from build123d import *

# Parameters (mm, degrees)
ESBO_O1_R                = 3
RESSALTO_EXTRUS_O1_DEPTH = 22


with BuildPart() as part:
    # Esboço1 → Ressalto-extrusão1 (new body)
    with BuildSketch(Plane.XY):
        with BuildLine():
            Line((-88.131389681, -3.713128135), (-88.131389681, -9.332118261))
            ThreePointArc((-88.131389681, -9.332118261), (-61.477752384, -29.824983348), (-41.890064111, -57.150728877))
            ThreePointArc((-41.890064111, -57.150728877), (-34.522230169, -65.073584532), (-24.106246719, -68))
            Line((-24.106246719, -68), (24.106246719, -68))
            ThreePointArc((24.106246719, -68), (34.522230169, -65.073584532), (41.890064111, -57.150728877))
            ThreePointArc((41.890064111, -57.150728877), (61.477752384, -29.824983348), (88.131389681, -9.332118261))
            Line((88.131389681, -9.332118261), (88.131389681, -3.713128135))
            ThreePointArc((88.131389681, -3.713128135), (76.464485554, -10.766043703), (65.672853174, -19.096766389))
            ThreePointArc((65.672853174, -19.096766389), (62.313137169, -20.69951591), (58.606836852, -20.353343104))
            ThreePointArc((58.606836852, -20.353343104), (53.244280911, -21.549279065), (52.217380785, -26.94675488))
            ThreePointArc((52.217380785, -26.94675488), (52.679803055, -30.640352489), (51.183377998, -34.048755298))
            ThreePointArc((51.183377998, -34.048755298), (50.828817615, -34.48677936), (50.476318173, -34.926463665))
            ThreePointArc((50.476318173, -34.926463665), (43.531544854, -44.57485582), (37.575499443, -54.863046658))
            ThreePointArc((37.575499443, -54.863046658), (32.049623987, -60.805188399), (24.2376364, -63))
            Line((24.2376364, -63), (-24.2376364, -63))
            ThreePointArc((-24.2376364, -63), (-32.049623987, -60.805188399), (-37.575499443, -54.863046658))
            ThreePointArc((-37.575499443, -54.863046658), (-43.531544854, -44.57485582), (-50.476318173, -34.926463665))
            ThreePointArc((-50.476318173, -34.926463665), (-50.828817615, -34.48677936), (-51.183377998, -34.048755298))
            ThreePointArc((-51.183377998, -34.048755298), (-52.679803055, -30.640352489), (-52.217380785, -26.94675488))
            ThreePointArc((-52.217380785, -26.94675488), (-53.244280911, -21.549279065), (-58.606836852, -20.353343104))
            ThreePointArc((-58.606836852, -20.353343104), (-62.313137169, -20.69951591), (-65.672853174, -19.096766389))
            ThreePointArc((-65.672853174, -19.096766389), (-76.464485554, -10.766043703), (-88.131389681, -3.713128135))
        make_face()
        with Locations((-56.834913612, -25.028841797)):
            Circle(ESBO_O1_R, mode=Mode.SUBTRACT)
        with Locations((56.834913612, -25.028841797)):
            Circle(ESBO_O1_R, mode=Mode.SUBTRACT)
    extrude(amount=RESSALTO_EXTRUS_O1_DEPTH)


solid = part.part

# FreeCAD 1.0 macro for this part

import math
import FreeCAD as App
import Part
import Sketcher
from FreeCAD import Vector

doc = App.newDocument("Part")
body = doc.addObject("PartDesign::Body", "Body")

# Sketch on XY plane
sketch1 = doc.addObject("Sketcher::SketchObject", "Sketch")
body.addObject(sketch1)
sketch1.AttachmentSupport = (doc.XY_Plane, [""])
sketch1.MapMode = "FlatFace"
sketch1.addGeometry([
    Part.LineSegment(Vector(-88.1, -3.7, 0), Vector(-88.1, -9.3, 0)),  # 0
    Part.ArcOfCircle(Part.Circle(Vector(-144.1, -109.8, 0), Vector(0, 0, 1), 115), math.radians(27), math.radians(61)),  # 1
    Part.ArcOfCircle(Part.Circle(Vector(-24.1, -48, 0), Vector(0, 0, 1), 20), math.radians(-153), math.radians(-90)),  # 2
    Part.LineSegment(Vector(-24.1, -68, 0), Vector(24.1, -68, 0)),  # 3
    Part.ArcOfCircle(Part.Circle(Vector(24.1, -48, 0), Vector(0, 0, 1), 20), math.radians(-90), math.radians(-27)),  # 4
    Part.ArcOfCircle(Part.Circle(Vector(144.1, -109.8, 0), Vector(0, 0, 1), 115), math.radians(119), math.radians(153)),  # 5
    Part.LineSegment(Vector(88.1, -9.3, 0), Vector(88.1, -3.7, 0)),  # 6
    Part.ArcOfCircle(Part.Circle(Vector(144.3, -109.8, 0), Vector(0, 0, 1), 120), math.radians(117.9), math.radians(130.92)),  # 7
    Part.ArcOfCircle(Part.Circle(Vector(61.1, -13.8, 0), Vector(0, 0, 1), 7), math.radians(-111), math.radians(-49)),  # 8
    Part.ArcOfCircle(Part.Circle(Vector(56.8, -25, 0), Vector(0, 0, 1), 5), math.radians(69), math.radians(203)),  # 9
    Part.ArcOfCircle(Part.Circle(Vector(45.8, -29.6, 0), Vector(0, 0, 1), 7), math.radians(-39), math.radians(23)),  # 10
    Part.ArcOfCircle(Part.Circle(Vector(144.3, -109.8, 0), Vector(0, 0, 1), 120), math.radians(140.88), math.radians(141.42)),  # 11
    Part.ArcOfCircle(Part.Circle(Vector(144.3, -109.8, 0), Vector(0, 0, 1), 120), math.radians(141.42), math.radians(152.77)),  # 12
    Part.ArcOfCircle(Part.Circle(Vector(24.2, -48, 0), Vector(0, 0, 1), 15), math.radians(-90), math.radians(-27)),  # 13
    Part.LineSegment(Vector(24.2, -63, 0), Vector(-24.2, -63, 0)),  # 14
    Part.ArcOfCircle(Part.Circle(Vector(-24.2, -48, 0), Vector(0, 0, 1), 15), math.radians(-153), math.radians(-90)),  # 15
    Part.ArcOfCircle(Part.Circle(Vector(-144.3, -109.8, 0), Vector(0, 0, 1), 120), math.radians(27.23), math.radians(38.58)),  # 16
    Part.ArcOfCircle(Part.Circle(Vector(-144.3, -109.8, 0), Vector(0, 0, 1), 120), math.radians(38.58), math.radians(39.12)),  # 17
    Part.ArcOfCircle(Part.Circle(Vector(-45.8, -29.6, 0), Vector(0, 0, 1), 7), math.radians(157), math.radians(219)),  # 18
    Part.ArcOfCircle(Part.Circle(Vector(-56.8, -25, 0), Vector(0, 0, 1), 5), math.radians(-23), math.radians(111)),  # 19
    Part.ArcOfCircle(Part.Circle(Vector(-61.1, -13.8, 0), Vector(0, 0, 1), 7), math.radians(-131), math.radians(-69)),  # 20
    Part.ArcOfCircle(Part.Circle(Vector(-144.3, -109.8, 0), Vector(0, 0, 1), 120), math.radians(49.08), math.radians(62.1)),  # 21
    Part.Circle(Vector(-56.8, -25, 0), Vector(0, 0, 1), 3),  # 22
    Part.Circle(Vector(56.8, -25, 0), Vector(0, 0, 1), 3),  # 23
], False)
sketch1.addConstraint([
    Sketcher.Constraint("Coincident", 0, 2, 1, 2),
    Sketcher.Constraint("Tangent", 1, 1, 2, 1),
    Sketcher.Constraint("Tangent", 2, 2, 3, 1),
    Sketcher.Constraint("Tangent", 3, 2, 4, 1),
    Sketcher.Constraint("Tangent", 4, 2, 5, 2),
    Sketcher.Constraint("Coincident", 5, 1, 6, 1),
    Sketcher.Constraint("Coincident", 6, 2, 7, 1),
    Sketcher.Constraint("Tangent", 7, 2, 8, 2),
    Sketcher.Constraint("Tangent", 8, 1, 9, 1),
    Sketcher.Constraint("Tangent", 9, 2, 10, 2),
    Sketcher.Constraint("Tangent", 10, 1, 11, 1),
    Sketcher.Constraint("Tangent", 11, 2, 12, 1),
    Sketcher.Constraint("Tangent", 12, 2, 13, 2),
    Sketcher.Constraint("Tangent", 13, 1, 14, 1),
    Sketcher.Constraint("Tangent", 14, 2, 15, 2),
    Sketcher.Constraint("Tangent", 15, 1, 16, 1),
    Sketcher.Constraint("Tangent", 16, 2, 17, 1),
    Sketcher.Constraint("Tangent", 17, 2, 18, 2),
    Sketcher.Constraint("Tangent", 18, 1, 19, 1),
    Sketcher.Constraint("Tangent", 19, 2, 20, 2),
    Sketcher.Constraint("Tangent", 20, 1, 21, 1),
    Sketcher.Constraint("Coincident", 21, 2, 0, 1),
    Sketcher.Constraint("Vertical", 0),
    Sketcher.Constraint("Horizontal", 3),
    Sketcher.Constraint("Vertical", 6),
    Sketcher.Constraint("Horizontal", 14),
    Sketcher.Constraint("Coincident", 12, 3, 7, 3),
    Sketcher.Constraint("Coincident", 21, 3, 16, 3),
    Sketcher.Constraint("Coincident", 22, 3, 19, 3),
    Sketcher.Constraint("Coincident", 23, 3, 9, 3),
    Sketcher.Constraint("Equal", 2, 4),
    Sketcher.Constraint("Equal", 1, 5),
    Sketcher.Constraint("Equal", 8, 10),
    Sketcher.Constraint("Equal", 7, 12),
    Sketcher.Constraint("Equal", 13, 15),
    Sketcher.Constraint("Equal", 12, 16),
    Sketcher.Constraint("Equal", 11, 17),
    Sketcher.Constraint("Equal", 10, 18),
    Sketcher.Constraint("Equal", 9, 19),
    Sketcher.Constraint("Equal", 18, 20),
    Sketcher.Constraint("Equal", 16, 21),
    Sketcher.Constraint("Equal", 22, 23),
    Sketcher.Constraint("Symmetric", 1, 3, 5, 3, -2),
    Sketcher.Constraint("Symmetric", 7, 3, 16, 3, -2),
    Sketcher.Constraint("Symmetric", 9, 3, 19, 3, -2),
    Sketcher.Constraint("Horizontal", 5, 3, 7, 3),
    Sketcher.Constraint("Horizontal", 4, 3, 13, 3),
    Sketcher.Constraint("Horizontal", 0, 2, 5, 1),
    Sketcher.Constraint("Horizontal", 11, 2, 16, 2),
    Sketcher.Constraint("Diameter", 22, 6.0),
    Sketcher.Constraint("Radius", 1, 115.0),
    Sketcher.Constraint("Radius", 2, 20.0),
    Sketcher.Constraint("Radius", 7, 120.0),
    Sketcher.Constraint("Radius", 8, 7.0),
    Sketcher.Constraint("Radius", 9, 5.0),
    Sketcher.Constraint("Radius", 13, 15.0),
    Sketcher.Constraint("DistanceY", 2, 3, -1, 1, 48.0),
    Sketcher.Constraint("Radius", 11, 119.999964),
    Sketcher.Constraint("DistanceY", 10, 1, 9, 2, 7.102),
    Sketcher.Constraint("DistanceY", 0, 2, 0, 1, 5.61899),
    Sketcher.Constraint("DistanceX", -1, 1, 12, 2, 37.575499),
    Sketcher.Constraint("DistanceX", 9, 3, 5, 3, 87.312101),
    Sketcher.Constraint("DistanceX", 13, 3, 10, 3, 21.515198),
    Sketcher.Constraint("DistanceX", 3, 1, 3, 2, 48.212493),
    Sketcher.Constraint("DistanceX", -1, 1, 11, 2, 50.476318),
])
pad1 = doc.addObject("PartDesign::Pad", "Pad")
body.addObject(pad1)
pad1.Profile = sketch1
pad1.Length = 22

doc.recompute()
